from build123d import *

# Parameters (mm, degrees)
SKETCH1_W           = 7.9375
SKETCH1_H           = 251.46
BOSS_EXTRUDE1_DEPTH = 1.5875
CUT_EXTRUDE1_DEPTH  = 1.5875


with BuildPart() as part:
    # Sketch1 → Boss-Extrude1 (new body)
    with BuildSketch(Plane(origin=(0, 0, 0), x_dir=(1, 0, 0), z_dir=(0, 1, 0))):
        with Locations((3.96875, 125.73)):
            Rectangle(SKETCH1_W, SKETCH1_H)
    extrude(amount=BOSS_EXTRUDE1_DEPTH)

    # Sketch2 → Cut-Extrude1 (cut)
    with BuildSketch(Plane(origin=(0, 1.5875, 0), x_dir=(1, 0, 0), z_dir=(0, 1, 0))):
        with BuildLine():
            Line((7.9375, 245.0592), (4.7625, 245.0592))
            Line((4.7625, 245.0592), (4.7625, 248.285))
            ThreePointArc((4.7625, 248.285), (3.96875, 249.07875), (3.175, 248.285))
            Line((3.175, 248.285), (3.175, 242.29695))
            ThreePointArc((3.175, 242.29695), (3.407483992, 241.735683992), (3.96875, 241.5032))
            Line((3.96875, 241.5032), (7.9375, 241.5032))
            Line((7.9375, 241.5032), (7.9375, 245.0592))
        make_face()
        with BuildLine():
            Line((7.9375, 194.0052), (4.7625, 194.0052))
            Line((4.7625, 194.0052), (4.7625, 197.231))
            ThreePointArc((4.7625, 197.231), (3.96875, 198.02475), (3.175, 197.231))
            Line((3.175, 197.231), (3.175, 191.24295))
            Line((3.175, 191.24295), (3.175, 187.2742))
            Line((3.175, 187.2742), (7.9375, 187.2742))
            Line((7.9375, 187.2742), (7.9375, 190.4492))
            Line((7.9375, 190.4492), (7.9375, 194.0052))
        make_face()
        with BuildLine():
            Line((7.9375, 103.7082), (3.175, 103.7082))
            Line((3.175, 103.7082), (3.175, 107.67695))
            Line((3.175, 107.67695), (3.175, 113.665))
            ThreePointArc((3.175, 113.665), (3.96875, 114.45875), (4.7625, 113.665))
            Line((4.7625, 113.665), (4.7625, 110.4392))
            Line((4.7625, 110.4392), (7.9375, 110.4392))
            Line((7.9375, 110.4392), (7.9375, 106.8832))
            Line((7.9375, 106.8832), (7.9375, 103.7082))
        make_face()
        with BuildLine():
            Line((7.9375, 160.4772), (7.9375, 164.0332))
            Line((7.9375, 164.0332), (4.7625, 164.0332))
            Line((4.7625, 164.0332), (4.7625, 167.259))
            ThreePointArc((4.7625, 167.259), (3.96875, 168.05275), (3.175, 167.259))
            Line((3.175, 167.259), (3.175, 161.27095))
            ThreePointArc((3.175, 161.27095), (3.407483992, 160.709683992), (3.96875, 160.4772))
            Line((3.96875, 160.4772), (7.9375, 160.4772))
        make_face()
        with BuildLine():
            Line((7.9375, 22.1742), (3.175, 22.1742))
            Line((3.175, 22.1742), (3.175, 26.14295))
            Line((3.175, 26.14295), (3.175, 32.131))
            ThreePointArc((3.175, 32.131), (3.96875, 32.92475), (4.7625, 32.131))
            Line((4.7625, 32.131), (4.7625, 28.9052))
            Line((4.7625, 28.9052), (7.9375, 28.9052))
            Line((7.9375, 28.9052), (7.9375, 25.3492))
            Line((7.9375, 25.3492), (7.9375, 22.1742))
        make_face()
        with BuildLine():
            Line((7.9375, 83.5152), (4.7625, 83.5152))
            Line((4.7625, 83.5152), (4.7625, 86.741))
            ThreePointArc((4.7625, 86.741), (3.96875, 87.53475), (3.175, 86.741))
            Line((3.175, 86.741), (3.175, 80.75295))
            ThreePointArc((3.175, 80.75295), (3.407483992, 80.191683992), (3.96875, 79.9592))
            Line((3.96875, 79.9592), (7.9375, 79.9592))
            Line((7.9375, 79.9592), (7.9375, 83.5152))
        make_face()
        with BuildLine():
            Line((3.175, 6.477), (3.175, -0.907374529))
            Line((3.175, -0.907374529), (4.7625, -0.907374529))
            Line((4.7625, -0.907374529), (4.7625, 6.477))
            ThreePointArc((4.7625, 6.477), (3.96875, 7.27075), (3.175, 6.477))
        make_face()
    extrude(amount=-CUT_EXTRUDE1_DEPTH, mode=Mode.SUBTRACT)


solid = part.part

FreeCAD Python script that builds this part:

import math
import FreeCAD as App
import Part
import Sketcher

V = App.Vector
Q = App.Units.Quantity


def add_polygon(sketch, points):
    """Adds a closed chain of lines whose ends are joined by coincident constraints."""
    first, n = sketch.GeometryCount, len(points)
    for a, b in zip(points, points[1:] + points[:1]):
        sketch.addGeometry(Part.LineSegment(App.Vector(*a, 0), App.Vector(*b, 0)), False)
    for i in range(n):
        sketch.addConstraint(Sketcher.Constraint("Coincident", first + i, 2, first + (i + 1) % n, 1))

doc = App.newDocument("Part")
body = doc.addObject("PartDesign::Body", "Body")

# Sketch on XZ plane
sketch1 = body.newObject("Sketcher::SketchObject", "Sketch")
sketch1.AttachmentSupport = (doc.getObject("XZ_Plane"), [""])
sketch1.MapMode = "FlatFace"
add_polygon(sketch1, [(0, -251), (0, 0), (8, 0), (8, -251)])  # lines 0-3
sketch1.addConstraint(Sketcher.Constraint("Vertical", 0))
sketch1.addConstraint(Sketcher.Constraint("Horizontal", 1))
sketch1.addConstraint(Sketcher.Constraint("Vertical", 2))
sketch1.addConstraint(Sketcher.Constraint("Horizontal", 3))
sketch1.addConstraint(Sketcher.Constraint("Coincident", 0, 2, -1, 1))
sketch1.addConstraint(Sketcher.Constraint("DistanceY", 0, 1, 0, 2, Q("9.9 in")))
sketch1.addConstraint(Sketcher.Constraint("DistanceX", 1, 1, 1, 2, Q("0.3125 in")))
pad1 = body.newObject("PartDesign::Pad", "Pad")
pad1.Profile = sketch1
pad1.Length = Q("0.0625 in")
pad1.Reversed = True

# Sketch on XZ plane
sketch2 = body.newObject("Sketcher::SketchObject", "Sketch001")
sketch2.AttachmentSupport = (doc.getObject("XZ_Plane"), [""])
sketch2.MapMode = "FlatFace"
sketch2.AttachmentOffset = App.Placement(V(0, 0, -0.0625 * 25.4), App.Rotation())
sketch2.addGeometry(Part.LineSegment(V(7.9, -245.1, 0), V(4.8, -245.1, 0)), False)
sketch2.addGeometry(Part.LineSegment(V(4.8, -245.1, 0), V(4.8, -248.3, 0)), False)
sketch2.addGeometry(Part.ArcOfCircle(Part.Circle(V(4, -248.3, 0), V(0, 0, 1), 0.8), math.radians(180), math.radians(360)), False)
sketch2.addGeometry(Part.LineSegment(V(3.2, -248.3, 0), V(3.2, -242.3, 0)), False)
sketch2.addGeometry(Part.ArcOfCircle(Part.Circle(V(4, -242.3, 0), V(0, 0, 1), 0.8), math.radians(90), math.radians(180)), False)
sketch2.addGeometry(Part.LineSegment(V(4, -241.5, 0), V(7.9, -241.5, 0)), False)
sketch2.addGeometry(Part.LineSegment(V(7.9, -241.5, 0), V(7.9, -245.1, 0)), False)
sketch2.addGeometry(Part.LineSegment(V(7.9, -194, 0), V(4.8, -194, 0)), False)
sketch2.addGeometry(Part.LineSegment(V(4.8, -194, 0), V(4.8, -197.2, 0)), False)
sketch2.addGeometry(Part.ArcOfCircle(Part.Circle(V(4, -197.2, 0), V(0, 0, 1), 0.8), math.radians(180), math.radians(360)), False)
sketch2.addGeometry(Part.LineSegment(V(3.2, -197.2, 0), V(3.2, -187.3, 0)), False)
sketch2.addGeometry(Part.LineSegment(V(3.2, -187.3, 0), V(7.9, -187.3, 0)), False)
sketch2.addGeometry(Part.LineSegment(V(7.9, -187.3, 0), V(7.9, -194, 0)), False)
sketch2.addGeometry(Part.LineSegment(V(3.2, -103.7, 0), V(7.9, -103.7, 0)), False)
sketch2.addGeometry(Part.LineSegment(V(7.9, -103.7, 0), V(7.9, -110.4, 0)), False)
sketch2.addGeometry(Part.LineSegment(V(7.9, -110.4, 0), V(4.8, -110.4, 0)), False)
sketch2.addGeometry(Part.LineSegment(V(4.8, -110.4, 0), V(4.8, -113.7, 0)), False)
sketch2.addGeometry(Part.ArcOfCircle(Part.Circle(V(4, -113.7, 0), V(0, 0, 1), 0.8), math.radians(180), math.radians(360)), False)
sketch2.addGeometry(Part.LineSegment(V(3.2, -113.7, 0), V(3.2, -103.7, 0)), False)
sketch2.addGeometry(Part.LineSegment(V(7.9, -160.5, 0), V(7.9, -164, 0)), False)
sketch2.addGeometry(Part.LineSegment(V(7.9, -164, 0), V(4.8, -164, 0)), False)
sketch2.addGeometry(Part.LineSegment(V(4.8, -164, 0), V(4.8, -167.3, 0)), False)
sketch2.addGeometry(Part.ArcOfCircle(Part.Circle(V(4, -167.3, 0), V(0, 0, 1), 0.8), math.radians(180), math.radians(360)), False)
sketch2.addGeometry(Part.LineSegment(V(3.2, -167.3, 0), V(3.2, -161.3, 0)), False)
sketch2.addGeometry(Part.ArcOfCircle(Part.Circle(V(4, -161.3, 0), V(0, 0, 1), 0.8), math.radians(90), math.radians(180)), False)
sketch2.addGeometry(Part.LineSegment(V(4, -160.5, 0), V(7.9, -160.5, 0)), False)
sketch2.addGeometry(Part.LineSegment(V(3.2, -22.2, 0), V(7.9, -22.2, 0)), False)
sketch2.addGeometry(Part.LineSegment(V(7.9, -22.2, 0), V(7.9, -28.9, 0)), False)
sketch2.addGeometry(Part.LineSegment(V(7.9, -28.9, 0), V(4.8, -28.9, 0)), False)
sketch2.addGeometry(Part.LineSegment(V(4.8, -28.9, 0), V(4.8, -32.1, 0)), False)
sketch2.addGeometry(Part.ArcOfCircle(Part.Circle(V(4, -32.1, 0), V(0, 0, 1), 0.8), math.radians(180), math.radians(360)), False)
sketch2.addGeometry(Part.LineSegment(V(3.2, -32.1, 0), V(3.2, -22.2, 0)), False)
sketch2.addGeometry(Part.LineSegment(V(7.9, -83.5, 0), V(4.8, -83.5, 0)), False)
sketch2.addGeometry(Part.LineSegment(V(4.8, -83.5, 0), V(4.8, -86.7, 0)), False)
sketch2.addGeometry(Part.ArcOfCircle(Part.Circle(V(4, -86.7, 0), V(0, 0, 1), 0.8), math.radians(180), math.radians(360)), False)
sketch2.addGeometry(Part.LineSegment(V(3.2, -86.7, 0), V(3.2, -80.8, 0)), False)
sketch2.addGeometry(Part.ArcOfCircle(Part.Circle(V(4, -80.8, 0), V(0, 0, 1), 0.8), math.radians(90), math.radians(180)), False)
sketch2.addGeometry(Part.LineSegment(V(4, -80, 0), V(7.9, -80, 0)), False)
sketch2.addGeometry(Part.LineSegment(V(7.9, -80, 0), V(7.9, -83.5, 0)), False)
sketch2.addGeometry(Part.LineSegment(V(3.2, -6.5, 0), V(3.2, 0.9, 0)), False)
sketch2.addGeometry(Part.LineSegment(V(3.2, 0.9, 0), V(4.8, 0.9, 0)), False)
sketch2.addGeometry(Part.LineSegment(V(4.8, 0.9, 0), V(4.8, -6.5, 0)), False)
sketch2.addGeometry(Part.ArcOfCircle(Part.Circle(V(4, -6.5, 0), V(0, 0, 1), 0.8), math.radians(180), math.radians(360)), False)
sketch2.addConstraint(Sketcher.Constraint("Coincident", 0, 2, 1, 1))
sketch2.addConstraint(Sketcher.Constraint("Tangent", 1, 2, 2, 2))
sketch2.addConstraint(Sketcher.Constraint("Tangent", 2, 1, 3, 1))
sketch2.addConstraint(Sketcher.Constraint("Tangent", 3, 2, 4, 2))
sketch2.addConstraint(Sketcher.Constraint("Tangent", 4, 1, 5, 1))
sketch2.addConstraint(Sketcher.Constraint("Coincident", 5, 2, 6, 1))
sketch2.addConstraint(Sketcher.Constraint("Coincident", 6, 2, 0, 1))
sketch2.addConstraint(Sketcher.Constraint("Coincident", 7, 2, 8, 1))
sketch2.addConstraint(Sketcher.Constraint("Tangent", 8, 2, 9, 2))
sketch2.addConstraint(Sketcher.Constraint("Tangent", 9, 1, 10, 1))
sketch2.addConstraint(Sketcher.Constraint("Coincident", 10, 2, 11, 1))
sketch2.addConstraint(Sketcher.Constraint("Coincident", 11, 2, 12, 1))
sketch2.addConstraint(Sketcher.Constraint("Coincident", 12, 2, 7, 1))
sketch2.addConstraint(Sketcher.Constraint("Coincident", 13, 2, 14, 1))
sketch2.addConstraint(Sketcher.Constraint("Coincident", 14, 2, 15, 1))
sketch2.addConstraint(Sketcher.Constraint("Coincident", 15, 2, 16, 1))
sketch2.addConstraint(Sketcher.Constraint("Tangent", 16, 2, 17, 2))
sketch2.addConstraint(Sketcher.Constraint("Tangent", 17, 1, 18, 1))
sketch2.addConstraint(Sketcher.Constraint("Coincident", 18, 2, 13, 1))
sketch2.addConstraint(Sketcher.Constraint("Coincident", 19, 2, 20, 1))
sketch2.addConstraint(Sketcher.Constraint("Coincident", 20, 2, 21, 1))
sketch2.addConstraint(Sketcher.Constraint("Tangent", 21, 2, 22, 2))
sketch2.addConstraint(Sketcher.Constraint("Tangent", 22, 1, 23, 1))
sketch2.addConstraint(Sketcher.Constraint("Tangent", 23, 2, 24, 2))
sketch2.addConstraint(Sketcher.Constraint("Tangent", 24, 1, 25, 1))
sketch2.addConstraint(Sketcher.Constraint("Coincident", 25, 2, 19, 1))
sketch2.addConstraint(Sketcher.Constraint("Coincident", 26, 2, 27, 1))
sketch2.addConstraint(Sketcher.Constraint("Coincident", 27, 2, 28, 1))
sketch2.addConstraint(Sketcher.Constraint("Coincident", 28, 2, 29, 1))
sketch2.addConstraint(Sketcher.Constraint("Tangent", 29, 2, 30, 2))
sketch2.addConstraint(Sketcher.Constraint("Tangent", 30, 1, 31, 1))
sketch2.addConstraint(Sketcher.Constraint("Coincident", 31, 2, 26, 1))
sketch2.addConstraint(Sketcher.Constraint("Coincident", 32, 2, 33, 1))
sketch2.addConstraint(Sketcher.Constraint("Tangent", 33, 2, 34, 2))
sketch2.addConstraint(Sketcher.Constraint("Tangent", 34, 1, 35, 1))
sketch2.addConstraint(Sketcher.Constraint("Tangent", 35, 2, 36, 2))
sketch2.addConstraint(Sketcher.Constraint("Tangent", 36, 1, 37, 1))
sketch2.addConstraint(Sketcher.Constraint("Coincident", 37, 2, 38, 1))
sketch2.addConstraint(Sketcher.Constraint("Coincident", 38, 2, 32, 1))
sketch2.addConstraint(Sketcher.Constraint("Coincident", 39, 2, 40, 1))
sketch2.addConstraint(Sketcher.Constraint("Coincident", 40, 2, 41, 1))
sketch2.addConstraint(Sketcher.Constraint("Tangent", 41, 2, 42, 2))
sketch2.addConstraint(Sketcher.Constraint("Tangent", 42, 1, 39, 1))
sketch2.addConstraint(Sketcher.Constraint("Horizontal", 0))
sketch2.addConstraint(Sketcher.Constraint("Vertical", 1))
sketch2.addConstraint(Sketcher.Constraint("Vertical", 3))
sketch2.addConstraint(Sketcher.Constraint("Horizontal", 5))
sketch2.addConstraint(Sketcher.Constraint("Vertical", 6))
sketch2.addConstraint(Sketcher.Constraint("Horizontal", 7))
sketch2.addConstraint(Sketcher.Constraint("Vertical", 8))
sketch2.addConstraint(Sketcher.Constraint("Vertical", 10))
sketch2.addConstraint(Sketcher.Constraint("Horizontal", 11))
sketch2.addConstraint(Sketcher.Constraint("Vertical", 12))
sketch2.addConstraint(Sketcher.Constraint("Horizontal", 13))
sketch2.addConstraint(Sketcher.Constraint("Vertical", 14))
sketch2.addConstraint(Sketcher.Constraint("Horizontal", 15))
sketch2.addConstraint(Sketcher.Constraint("Vertical", 16))
sketch2.addConstraint(Sketcher.Constraint("Vertical", 18))
sketch2.addConstraint(Sketcher.Constraint("Vertical", 19))
sketch2.addConstraint(Sketcher.Constraint("Horizontal", 20))
sketch2.addConstraint(Sketcher.Constraint("Vertical", 21))
sketch2.addConstraint(Sketcher.Constraint("Vertical", 23))
sketch2.addConstraint(Sketcher.Constraint("Horizontal", 25))
sketch2.addConstraint(Sketcher.Constraint("Horizontal", 26))
sketch2.addConstraint(Sketcher.Constraint("Vertical", 27))
sketch2.addConstraint(Sketcher.Constraint("Horizontal", 28))
sketch2.addConstraint(Sketcher.Constraint("Vertical", 29))
sketch2.addConstraint(Sketcher.Constraint("Vertical", 31))
sketch2.addConstraint(Sketcher.Constraint("Horizontal", 32))
sketch2.addConstraint(Sketcher.Constraint("Vertical", 33))
sketch2.addConstraint(Sketcher.Constraint("Vertical", 35))
sketch2.addConstraint(Sketcher.Constraint("Horizontal", 37))
sketch2.addConstraint(Sketcher.Constraint("Vertical", 38))
sketch2.addConstraint(Sketcher.Constraint("Vertical", 39))
sketch2.addConstraint(Sketcher.Constraint("Horizontal", 40))
sketch2.addConstraint(Sketcher.Constraint("Vertical", 41))
sketch2.addConstraint(Sketcher.Constraint("Equal", 2, 4))
sketch2.addConstraint(Sketcher.Constraint("Equal", 4, 9))
sketch2.addConstraint(Sketcher.Constraint("Equal", 9, 17))
sketch2.addConstraint(Sketcher.Constraint("Equal", 17, 22))
sketch2.addConstraint(Sketcher.Constraint("Equal", 22, 24))
sketch2.addConstraint(Sketcher.Constraint("Equal", 24, 30))
sketch2.addConstraint(Sketcher.Constraint("Equal", 30, 34))
sketch2.addConstraint(Sketcher.Constraint("Equal", 34, 36))
sketch2.addConstraint(Sketcher.Constraint("Equal", 36, 42))
sketch2.addConstraint(Sketcher.Constraint("Vertical", 4, 3, 9, 3))
sketch2.addConstraint(Sketcher.Constraint("Vertical", 9, 3, 17, 3))
sketch2.addConstraint(Sketcher.Constraint("Vertical", 17, 3, 22, 3))
sketch2.addConstraint(Sketcher.Constraint("Vertical", 24, 3, 30, 3))
sketch2.addConstraint(Sketcher.Constraint("Vertical", 30, 3, 34, 3))
sketch2.addConstraint(Sketcher.Constraint("Vertical", 36, 3, 42, 3))
sketch2.addConstraint(Sketcher.Constraint("Vertical", 6, 2, 11, 2))
sketch2.addConstraint(Sketcher.Constraint("Vertical", 12, 2, 13, 2))
sketch2.addConstraint(Sketcher.Constraint("Vertical", 14, 2, 19, 2))
sketch2.addConstraint(Sketcher.Constraint("Vertical", 25, 2, 26, 2))
sketch2.addConstraint(Sketcher.Constraint("Vertical", 27, 2, 37, 2))
sketch2.addConstraint(Sketcher.Constraint("Equal", 1, 8))
sketch2.addConstraint(Sketcher.Constraint("Equal", 12, 14))
sketch2.addConstraint(Sketcher.Constraint("Equal", 8, 16))
sketch2.addConstraint(Sketcher.Constraint("Equal", 6, 19))
sketch2.addConstraint(Sketcher.Constraint("Equal", 16, 21))
sketch2.addConstraint(Sketcher.Constraint("Equal", 14, 27))
sketch2.addConstraint(Sketcher.Constraint("Equal", 21, 29))
sketch2.addConstraint(Sketcher.Constraint("Equal", 29, 33))
sketch2.addConstraint(Sketcher.Constraint("Equal", 23, 35))
sketch2.addConstraint(Sketcher.Constraint("Radius", 2, Q("0.03125 in")))
sketch2.addConstraint(Sketcher.Constraint("DistanceY", 6, 2, 6, 1, Q("0.14 in")))
sketch2.addConstraint(Sketcher.Constraint("DistanceY", 2, 3, 17, 3, Q("5.3 in")))
sketch2.addConstraint(Sketcher.Constraint("DistanceY", 9, 3, 30, 3, Q("6.5 in")))
sketch2.addConstraint(Sketcher.Constraint("DistanceX", 0, 2, 0, 1, Q("0.125 in")))
sketch2.addConstraint(Sketcher.Constraint("DistanceY", 1, 2, 1, 1, Q("0.127 in")))
sketch2.addConstraint(Sketcher.Constraint("DistanceY", 10, 1, 10, 2, Q("0.392 in")))
sketch2.addConstraint(Sketcher.Constraint("DistanceY", 2, 3, 9, 3, Q("2.01 in")))
sketch2.addConstraint(Sketcher.Constraint("DistanceY", 9, 3, 22, 3, Q("1.18 in")))
sketch2.addConstraint(Sketcher.Constraint("DistanceY", 17, 3, 34, 3, Q("1.06 in")))
sketch2.addConstraint(Sketcher.Constraint("DistanceY", 30, 3, 42, 3, Q("1.01 in")))
sketch2.addConstraint(Sketcher.Constraint("DistanceX", -1, 1, 2, 3, Q("0.15625 in")))
sketch2.addConstraint(Sketcher.Constraint("DistanceY", 2, 3, -1, 1, Q("9.775 in")))
sketch2.addConstraint(Sketcher.Constraint("DistanceY", 39, 1, 39, 2, Q("7.384375 mm")))
pocket1 = body.newObject("PartDesign::Pocket", "Pocket")
pocket1.Profile = sketch2
pocket1.Length = Q("0.0625 in")
pocket1.Reversed = True

doc.recompute()
